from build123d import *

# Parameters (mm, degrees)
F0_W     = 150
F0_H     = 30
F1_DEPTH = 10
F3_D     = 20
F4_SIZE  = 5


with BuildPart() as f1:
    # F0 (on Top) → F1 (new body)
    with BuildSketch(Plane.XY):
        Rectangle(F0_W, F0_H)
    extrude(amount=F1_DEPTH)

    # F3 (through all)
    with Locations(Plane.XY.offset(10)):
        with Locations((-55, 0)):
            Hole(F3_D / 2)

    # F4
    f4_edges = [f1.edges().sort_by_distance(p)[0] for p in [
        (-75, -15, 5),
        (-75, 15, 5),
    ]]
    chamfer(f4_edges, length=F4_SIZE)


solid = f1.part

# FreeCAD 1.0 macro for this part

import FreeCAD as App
import Part
import Sketcher
from FreeCAD import Vector


def edges_at(feature, points):
    """Names of the edges that pass closest to the given points."""
    edges = feature.Shape.Edges
    near = lambda p: min(range(len(edges)), key=lambda i: edges[i].distToShape(Part.Vertex(*p))[0])
    return sorted({f"Edge{near(p) + 1}" for p in points})


def add_polygon(sketch, points):
    """Adds a closed chain of lines whose ends are joined by coincident constraints."""
    first, n = sketch.GeometryCount, len(points)
    for a, b in zip(points, points[1:] + points[:1]):
        sketch.addGeometry(Part.LineSegment(App.Vector(*a, 0), App.Vector(*b, 0)), False)
    for i in range(n):
        sketch.addConstraint(Sketcher.Constraint("Coincident", first + i, 2, first + (i + 1) % n, 1))

doc = App.newDocument("Part")
params = doc.addObject("Spreadsheet::Sheet", "Params")
for row, (alias, value) in enumerate([
    ("sketch1_width", "150 mm"),
    ("sketch1_height", "30 mm"),
    ("pad1_length", "10 mm"),
    ("sketch2_diameter", "20 mm"),
    ("hole_diameter", "20 mm"),
    ("chamfer_size", "5 mm"),
], start=1):
    params.set(f"A{row}", alias)
    params.set(f"B{row}", "=" + value)
    params.setAlias(f"B{row}", alias)

body = doc.addObject("PartDesign::Body", "Body")

# Sketch on XY plane
sketch1 = doc.addObject("Sketcher::SketchObject", "Sketch")
body.addObject(sketch1)
sketch1.AttachmentSupport = (doc.XY_Plane, [""])
sketch1.MapMode = "FlatFace"
add_polygon(sketch1, [(-75, 15), (-75, -15), (75, -15), (75, 15)])  # lines 0-3
sketch1.addConstraint(Sketcher.Constraint("Vertical", 0))
sketch1.addConstraint(Sketcher.Constraint("Horizontal", 1))
sketch1.addConstraint(Sketcher.Constraint("Vertical", 2))
sketch1.addConstraint(Sketcher.Constraint("Horizontal", 3))
sketch1.addConstraint(Sketcher.Constraint("Symmetric", 0, 2, 2, 2, -1, 1))
sketch1.addConstraint(Sketcher.Constraint("DistanceX", 1, 1, 1, 2, 150.0))
sketch1.addConstraint(Sketcher.Constraint("DistanceY", 0, 2, 0, 1, 30.0))
sketch1.setExpression("Constraints[9]", "Params.sketch1_width")
sketch1.setExpression("Constraints[10]", "Params.sketch1_height")
pad1 = doc.addObject("PartDesign::Pad", "Pad")
body.addObject(pad1)
pad1.Profile = sketch1
pad1.setExpression("Length", "Params.pad1_length")

# Sketch on XY plane
sketch2 = doc.addObject("Sketcher::SketchObject", "Sketch001")
body.addObject(sketch2)
sketch2.AttachmentSupport = (doc.XY_Plane, [""])
sketch2.MapMode = "FlatFace"
sketch2.AttachmentOffset = App.Placement(Vector(0, 0, 10), App.Rotation())
sketch2.addGeometry(Part.Circle(Vector(-55, 0, 0), Vector(0, 0, 1), 10), False)
sketch2.addConstraint(Sketcher.Constraint("PointOnObject", 0, 3, -1))
sketch2.addConstraint(Sketcher.Constraint("Diameter", 0, 20.0))
sketch2.addConstraint(Sketcher.Constraint("DistanceX", 0, 3, -1, 1, 55.0))
sketch2.setExpression("Constraints[1]", "Params.sketch2_diameter")
doc.recompute()
hole = doc.addObject("PartDesign::Hole", "Hole")
body.addObject(hole)
hole.Profile = sketch2
hole.ThreadType = "None"
hole.setExpression("Diameter", "Params.hole_diameter")
hole.DepthType = "ThroughAll"
doc.recompute()

chamfer = doc.addObject("PartDesign::Chamfer", "Chamfer")
body.addObject(chamfer)
chamfer.Base = (hole, edges_at(hole, [(-75, -15, 5), (-75, 15, 5)]))
chamfer.setExpression("Size", "Params.chamfer_size")

doc.recompute()
